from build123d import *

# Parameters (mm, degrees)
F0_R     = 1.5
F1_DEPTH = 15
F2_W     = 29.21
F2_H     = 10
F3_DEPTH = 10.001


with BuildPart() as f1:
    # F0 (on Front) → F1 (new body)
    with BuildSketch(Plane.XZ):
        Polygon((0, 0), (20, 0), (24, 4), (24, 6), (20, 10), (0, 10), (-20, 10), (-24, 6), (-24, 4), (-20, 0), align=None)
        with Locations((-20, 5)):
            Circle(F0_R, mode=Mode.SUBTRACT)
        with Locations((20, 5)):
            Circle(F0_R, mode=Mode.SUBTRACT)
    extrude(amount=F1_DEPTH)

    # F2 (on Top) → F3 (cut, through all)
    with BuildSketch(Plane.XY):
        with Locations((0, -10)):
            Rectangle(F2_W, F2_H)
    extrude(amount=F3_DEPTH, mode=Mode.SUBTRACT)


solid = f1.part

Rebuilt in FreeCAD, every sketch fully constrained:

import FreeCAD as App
import Part
import Sketcher
from FreeCAD import Vector


def add_polygon(sketch, points):
    """Adds a closed chain of lines whose ends are joined by coincident constraints."""
    first, n = sketch.GeometryCount, len(points)
    for a, b in zip(points, points[1:] + points[:1]):
        sketch.addGeometry(Part.LineSegment(App.Vector(*a, 0), App.Vector(*b, 0)), False)
    for i in range(n):
        sketch.addConstraint(Sketcher.Constraint("Coincident", first + i, 2, first + (i + 1) % n, 1))

doc = App.newDocument("Part")
params = doc.addObject("Spreadsheet::Sheet", "Params")
for row, (alias, value) in enumerate([
    ("sketch1_diameter", "3 mm"),
    ("sketch1_width", "40 mm"),
    ("sketch1_height", "2 mm"),
    ("pad1_length", "15 mm"),
    ("sketch2_height", "10 mm"),
    ("sketch2_width", "29.21 mm"),
], start=1):
    params.set(f"A{row}", alias)
    params.set(f"B{row}", "=" + value)
    params.setAlias(f"B{row}", alias)

body = doc.addObject("PartDesign::Body", "Body")

sketch1 = body.newObject("Sketcher::SketchObject", "Sketch")
sketch1.AttachmentSupport = (doc.getObject("XZ_Plane"), [""])
sketch1.MapMode = "FlatFace"
add_polygon(sketch1, [(20, 0), (24, 4), (24, 6), (20, 10), (-20, 10), (-24, 6), (-24, 4), (-20, 0)])
sketch1.addGeometry(Part.Circle(Vector(-20, 5, 0), Vector(0, 0, 1), 1.5), False)
sketch1.addGeometry(Part.Circle(Vector(20, 5, 0), Vector(0, 0, 1), 1.5), False)
sketch1.addConstraint(Sketcher.Constraint("Vertical", 1))
sketch1.addConstraint(Sketcher.Constraint("Horizontal", 3))
sketch1.addConstraint(Sketcher.Constraint("Vertical", 5))
sketch1.addConstraint(Sketcher.Constraint("Horizontal", 7))
sketch1.addConstraint(Sketcher.Constraint("Equal", 8, 9))
sketch1.addConstraint(Sketcher.Constraint("Symmetric", 6, 2, 7, 2, -1, 1))
sketch1.addConstraint(Sketcher.Constraint("Symmetric", 8, 3, 9, 3, -2))
sketch1.addConstraint(Sketcher.Constraint("Symmetric", 1, 2, 4, 2, -2))
sketch1.addConstraint(Sketcher.Constraint("Perpendicular", 0, 2))
sketch1.addConstraint(Sketcher.Constraint("Perpendicular", 2, 4))
sketch1.addConstraint(Sketcher.Constraint("Perpendicular", 4, 6))
sketch1.addConstraint(Sketcher.Constraint("Horizontal", 0, 2, 5, 2))
sketch1.addConstraint(Sketcher.Constraint("Vertical", 9, 3, 2, 2))
sketch1.addConstraint(Sketcher.Constraint("Vertical", 3, 2, 6, 2))
sketch1.addConstraint(Sketcher.Constraint("Diameter", 8, 3.0))
sketch1.addConstraint(Sketcher.Constraint("DistanceX", 3, 2, 3, 1, 40.0))
sketch1.addConstraint(Sketcher.Constraint("DistanceY", 1, 1, 1, 2, 2.0))
sketch1.addConstraint(Sketcher.Constraint("DistanceY", -1, 1, 8, 3, 5.0))
sketch1.addConstraint(Sketcher.Constraint("DistanceX", -1, 1, 0, 2, 24.0))
sketch1.setExpression("Constraints[22]", "Params.sketch1_diameter")
sketch1.setExpression("Constraints[23]", "Params.sketch1_width")
sketch1.setExpression("Constraints[24]", "Params.sketch1_height")
pad1 = body.newObject("PartDesign::Pad", "Pad")
pad1.Profile = sketch1
pad1.setExpression("Length", "Params.pad1_length")

sketch2 = body.newObject("Sketcher::SketchObject", "Sketch001")
sketch2.AttachmentSupport = (doc.getObject("XY_Plane"), [""])
sketch2.MapMode = "FlatFace"
add_polygon(sketch2, [(-14.605, -5), (-14.605, -15), (14.605, -15), (14.605, -5)])
sketch2.addConstraint(Sketcher.Constraint("Vertical", 0))
sketch2.addConstraint(Sketcher.Constraint("Horizontal", 1))
sketch2.addConstraint(Sketcher.Constraint("Vertical", 2))
sketch2.addConstraint(Sketcher.Constraint("Horizontal", 3))
sketch2.addConstraint(Sketcher.Constraint("DistanceY", 0, 2, 0, 1, 10.0))
sketch2.addConstraint(Sketcher.Constraint("DistanceY", 0, 2, -1, 1, 15.0))
sketch2.addConstraint(Sketcher.Constraint("DistanceX", 1, 1, 1, 2, 29.21))
sketch2.addConstraint(Sketcher.Constraint("DistanceX", 0, 2, -1, 1, 14.605))
sketch2.setExpression("Constraints[8]", "Params.sketch2_height")
sketch2.setExpression("Constraints[10]", "Params.sketch2_width")
pocket1 = body.newObject("PartDesign::Pocket", "Pocket")
pocket1.Profile = sketch2
pocket1.Type = "ThroughAll"
pocket1.Reversed = True

doc.recompute()
